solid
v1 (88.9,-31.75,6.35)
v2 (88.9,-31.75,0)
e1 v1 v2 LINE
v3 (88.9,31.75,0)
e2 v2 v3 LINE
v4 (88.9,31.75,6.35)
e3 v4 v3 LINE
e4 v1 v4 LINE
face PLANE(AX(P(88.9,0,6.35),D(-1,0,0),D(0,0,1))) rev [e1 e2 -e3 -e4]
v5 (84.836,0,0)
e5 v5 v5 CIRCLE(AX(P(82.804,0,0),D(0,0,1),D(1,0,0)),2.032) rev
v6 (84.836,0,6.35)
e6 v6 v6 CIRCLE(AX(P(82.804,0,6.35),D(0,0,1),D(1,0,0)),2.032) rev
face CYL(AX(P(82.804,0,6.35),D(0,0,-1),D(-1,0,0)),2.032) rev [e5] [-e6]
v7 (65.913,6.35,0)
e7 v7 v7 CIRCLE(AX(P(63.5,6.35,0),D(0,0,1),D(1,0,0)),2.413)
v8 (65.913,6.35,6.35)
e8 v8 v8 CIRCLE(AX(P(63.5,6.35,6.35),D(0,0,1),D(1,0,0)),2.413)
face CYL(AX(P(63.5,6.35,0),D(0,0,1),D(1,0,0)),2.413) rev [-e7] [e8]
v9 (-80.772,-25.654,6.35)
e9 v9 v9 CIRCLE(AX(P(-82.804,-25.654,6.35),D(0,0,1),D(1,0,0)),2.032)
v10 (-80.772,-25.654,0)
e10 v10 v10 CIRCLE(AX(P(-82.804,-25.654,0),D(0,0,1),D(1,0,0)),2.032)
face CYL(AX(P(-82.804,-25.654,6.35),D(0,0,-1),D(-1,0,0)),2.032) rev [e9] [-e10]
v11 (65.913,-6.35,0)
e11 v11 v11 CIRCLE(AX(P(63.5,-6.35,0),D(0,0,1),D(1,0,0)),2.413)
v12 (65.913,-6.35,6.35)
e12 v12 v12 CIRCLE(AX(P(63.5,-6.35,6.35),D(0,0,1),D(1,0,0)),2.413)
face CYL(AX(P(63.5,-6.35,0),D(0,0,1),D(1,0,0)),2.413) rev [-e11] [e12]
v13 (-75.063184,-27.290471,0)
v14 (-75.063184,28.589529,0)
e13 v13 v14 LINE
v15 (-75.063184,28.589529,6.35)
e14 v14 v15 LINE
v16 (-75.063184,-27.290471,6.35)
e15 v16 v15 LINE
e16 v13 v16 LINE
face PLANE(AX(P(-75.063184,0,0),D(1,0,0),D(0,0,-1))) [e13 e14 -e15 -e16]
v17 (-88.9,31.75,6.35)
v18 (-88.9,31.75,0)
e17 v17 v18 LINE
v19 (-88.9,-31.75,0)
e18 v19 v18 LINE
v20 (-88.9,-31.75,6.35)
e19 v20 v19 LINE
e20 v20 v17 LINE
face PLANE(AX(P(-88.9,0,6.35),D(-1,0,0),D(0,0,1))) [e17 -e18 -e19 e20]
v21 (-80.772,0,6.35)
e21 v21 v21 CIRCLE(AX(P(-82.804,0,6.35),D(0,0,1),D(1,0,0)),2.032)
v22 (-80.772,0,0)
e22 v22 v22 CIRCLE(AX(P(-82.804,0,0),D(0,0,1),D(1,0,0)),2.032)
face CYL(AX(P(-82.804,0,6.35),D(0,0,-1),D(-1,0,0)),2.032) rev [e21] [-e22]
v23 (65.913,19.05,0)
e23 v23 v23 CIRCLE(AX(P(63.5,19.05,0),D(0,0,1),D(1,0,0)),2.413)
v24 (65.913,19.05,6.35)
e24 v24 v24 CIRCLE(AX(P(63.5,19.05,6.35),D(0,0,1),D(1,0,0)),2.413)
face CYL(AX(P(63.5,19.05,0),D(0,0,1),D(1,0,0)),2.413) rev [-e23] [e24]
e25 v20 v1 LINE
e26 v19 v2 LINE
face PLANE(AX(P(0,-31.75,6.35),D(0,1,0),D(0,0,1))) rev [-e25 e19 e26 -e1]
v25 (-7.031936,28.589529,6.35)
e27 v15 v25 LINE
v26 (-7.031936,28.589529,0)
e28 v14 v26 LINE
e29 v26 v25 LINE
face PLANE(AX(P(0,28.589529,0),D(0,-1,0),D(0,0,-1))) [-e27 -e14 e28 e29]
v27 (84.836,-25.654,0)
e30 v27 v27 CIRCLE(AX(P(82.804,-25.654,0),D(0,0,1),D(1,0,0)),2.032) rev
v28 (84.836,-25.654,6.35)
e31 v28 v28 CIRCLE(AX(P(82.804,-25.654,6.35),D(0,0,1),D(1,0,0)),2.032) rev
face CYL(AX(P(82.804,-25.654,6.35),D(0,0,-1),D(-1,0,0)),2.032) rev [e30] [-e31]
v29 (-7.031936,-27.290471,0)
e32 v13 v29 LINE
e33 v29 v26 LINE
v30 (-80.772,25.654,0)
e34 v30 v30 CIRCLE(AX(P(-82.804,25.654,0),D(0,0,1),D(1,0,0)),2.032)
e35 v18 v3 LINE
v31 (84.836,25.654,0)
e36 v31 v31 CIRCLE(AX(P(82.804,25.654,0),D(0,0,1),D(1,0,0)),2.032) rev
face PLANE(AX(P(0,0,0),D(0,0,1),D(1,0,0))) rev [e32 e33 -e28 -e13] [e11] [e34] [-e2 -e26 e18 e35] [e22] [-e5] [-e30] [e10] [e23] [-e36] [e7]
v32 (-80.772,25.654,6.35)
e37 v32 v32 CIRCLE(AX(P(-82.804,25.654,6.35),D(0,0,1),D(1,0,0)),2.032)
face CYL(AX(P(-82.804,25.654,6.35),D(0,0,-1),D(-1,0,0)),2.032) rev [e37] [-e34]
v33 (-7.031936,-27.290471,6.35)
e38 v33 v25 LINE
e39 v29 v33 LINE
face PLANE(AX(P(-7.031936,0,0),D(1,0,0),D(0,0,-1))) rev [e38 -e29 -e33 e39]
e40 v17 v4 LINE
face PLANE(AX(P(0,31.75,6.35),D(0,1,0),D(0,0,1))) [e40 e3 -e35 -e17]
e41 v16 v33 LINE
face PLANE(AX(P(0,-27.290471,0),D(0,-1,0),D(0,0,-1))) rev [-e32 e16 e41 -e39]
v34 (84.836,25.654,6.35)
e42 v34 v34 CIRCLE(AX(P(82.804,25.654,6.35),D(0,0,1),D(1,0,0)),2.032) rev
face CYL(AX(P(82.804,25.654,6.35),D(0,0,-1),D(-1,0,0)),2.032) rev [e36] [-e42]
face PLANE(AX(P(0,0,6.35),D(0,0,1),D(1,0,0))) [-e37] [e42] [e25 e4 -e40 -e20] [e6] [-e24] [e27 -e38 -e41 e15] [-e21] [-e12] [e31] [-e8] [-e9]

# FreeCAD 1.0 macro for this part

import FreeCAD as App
import Part
import Sketcher
from FreeCAD import Vector
Q = App.Units.Quantity

doc = App.newDocument("Part")
params = doc.addObject("Spreadsheet::Sheet", "Params")
for row, (alias, value) in enumerate([
    ("sketch1_diameter", "0.16 in"),
    ("sketch1_width", "7 in"),
    ("sketch1_height", "2.5 in"),
    ("pad1_length", "0.25 in"),
    ("sketch2_height", "2.2 in"),
    ("pocket1_length", "0.25 in"),
    ("sketch3_diameter", "0.19 in"),
    ("pocket2_length", "0.25 in"),
    ("linearpattern_pitch", "0.5 in"),
], start=1):
    params.set(f"A{row}", alias)
    params.set(f"B{row}", "=" + value)
    params.setAlias(f"B{row}", alias)

body = doc.addObject("PartDesign::Body", "Body")

# Sketch on XY plane
sketch1 = body.newObject("Sketcher::SketchObject", "Sketch")
sketch1.AttachmentSupport = (doc.getObject("XY_Plane"), [""])
sketch1.MapMode = "FlatFace"
sketch1.addGeometry(Part.LineSegment(Vector(-88.9, 31.8, 0), Vector(-88.9, -31.8, 0)), False)
sketch1.addGeometry(Part.LineSegment(Vector(-88.9, -31.8, 0), Vector(88.9, -31.8, 0)), False)
sketch1.addGeometry(Part.LineSegment(Vector(88.9, -31.8, 0), Vector(88.9, 31.8, 0)), False)
sketch1.addGeometry(Part.LineSegment(Vector(88.9, 31.8, 0), Vector(-88.9, 31.8, 0)), False)
sketch1.addGeometry(Part.Circle(Vector(-82.8, -25.7, 0), Vector(0, 0, 1), 2), False)
sketch1.addGeometry(Part.Circle(Vector(82.8, -25.7, 0), Vector(0, 0, 1), 2), False)
sketch1.addGeometry(Part.Circle(Vector(-82.8, 0, 0), Vector(0, 0, 1), 2), False)
sketch1.addGeometry(Part.Circle(Vector(-82.8, 25.7, 0), Vector(0, 0, 1), 2), False)
sketch1.addGeometry(Part.Circle(Vector(82.8, 0, 0), Vector(0, 0, 1), 2), False)
sketch1.addGeometry(Part.Circle(Vector(82.8, 25.7, 0), Vector(0, 0, 1), 2), False)
sketch1.addConstraint(Sketcher.Constraint("Coincident", 0, 2, 1, 1))
sketch1.addConstraint(Sketcher.Constraint("Coincident", 1, 2, 2, 1))
sketch1.addConstraint(Sketcher.Constraint("Coincident", 2, 2, 3, 1))
sketch1.addConstraint(Sketcher.Constraint("Coincident", 3, 2, 0, 1))
sketch1.addConstraint(Sketcher.Constraint("Vertical", 0))
sketch1.addConstraint(Sketcher.Constraint("Horizontal", 1))
sketch1.addConstraint(Sketcher.Constraint("Vertical", 2))
sketch1.addConstraint(Sketcher.Constraint("Horizontal", 3))
sketch1.addConstraint(Sketcher.Constraint("Equal", 4, 5))
sketch1.addConstraint(Sketcher.Constraint("Equal", 5, 6))
sketch1.addConstraint(Sketcher.Constraint("Equal", 6, 7))
sketch1.addConstraint(Sketcher.Constraint("Equal", 7, 8))
sketch1.addConstraint(Sketcher.Constraint("Equal", 8, 9))
sketch1.addConstraint(Sketcher.Constraint("Symmetric", 5, 3, 7, 3, -1, 1))
sketch1.addConstraint(Sketcher.Constraint("Symmetric", 6, 3, 8, 3, -1, 1))
sketch1.addConstraint(Sketcher.Constraint("Symmetric", 4, 3, 9, 3, -1, 1))
sketch1.addConstraint(Sketcher.Constraint("Symmetric", 0, 2, 2, 2, -1, 1))
sketch1.addConstraint(Sketcher.Constraint("Symmetric", 4, 3, 5, 3, -2))
sketch1.addConstraint(Sketcher.Constraint("PointOnObject", 6, 3, -1))
sketch1.addConstraint(Sketcher.Constraint("Vertical", 4, 3, 6, 3))
sketch1.addConstraint(Sketcher.Constraint("Diameter", 4, Q("0.16 in")))
sketch1.addConstraint(Sketcher.Constraint("DistanceX", 1, 1, 1, 2, Q("7 in")))
sketch1.addConstraint(Sketcher.Constraint("DistanceY", 0, 2, 0, 1, Q("2.5 in")))
sketch1.addConstraint(Sketcher.Constraint("DistanceX", 4, 3, -1, 1, Q("3.26 in")))
sketch1.addConstraint(Sketcher.Constraint("DistanceY", 4, 3, -1, 1, Q("1.01 in")))
sketch1.setExpression("Constraints[20]", "Params.sketch1_diameter")
sketch1.setExpression("Constraints[21]", "Params.sketch1_width")
sketch1.setExpression("Constraints[22]", "Params.sketch1_height")
pad1 = body.newObject("PartDesign::Pad", "Pad")
pad1.Profile = sketch1
pad1.setExpression("Length", "Params.pad1_length")

# Sketch on XY plane
sketch2 = body.newObject("Sketcher::SketchObject", "Sketch001")
sketch2.AttachmentSupport = (doc.getObject("XY_Plane"), [""])
sketch2.MapMode = "FlatFace"
sketch2.AttachmentOffset = App.Placement(Vector(0, 0, 0.25 * 25.4), App.Rotation())
sketch2.addGeometry(Part.LineSegment(Vector(-75, 29, 0), Vector(-75, -27, 0)), False)
sketch2.addGeometry(Part.LineSegment(Vector(-75, -27, 0), Vector(-7, -27, 0)), False)
sketch2.addGeometry(Part.LineSegment(Vector(-7, -27, 0), Vector(-7, 29, 0)), False)
sketch2.addGeometry(Part.LineSegment(Vector(-7, 29, 0), Vector(-75, 29, 0)), False)
sketch2.addConstraint(Sketcher.Constraint("Coincident", 0, 2, 1, 1))
sketch2.addConstraint(Sketcher.Constraint("Coincident", 1, 2, 2, 1))
sketch2.addConstraint(Sketcher.Constraint("Coincident", 2, 2, 3, 1))
sketch2.addConstraint(Sketcher.Constraint("Coincident", 3, 2, 0, 1))
sketch2.addConstraint(Sketcher.Constraint("Vertical", 0))
sketch2.addConstraint(Sketcher.Constraint("Horizontal", 1))
sketch2.addConstraint(Sketcher.Constraint("Vertical", 2))
sketch2.addConstraint(Sketcher.Constraint("Horizontal", 3))
sketch2.addConstraint(Sketcher.Constraint("DistanceY", 0, 2, 0, 1, Q("2.2 in")))
sketch2.addConstraint(Sketcher.Constraint("DistanceX", 1, 1, 1, 2, Q("68.031248 mm")))
sketch2.addConstraint(Sketcher.Constraint("DistanceY", 0, 2, -1, 1, Q("27.290471 mm")))
sketch2.addConstraint(Sketcher.Constraint("DistanceX", 0, 2, -1, 1, Q("75.063184 mm")))
sketch2.setExpression("Constraints[8]", "Params.sketch2_height")
pocket1 = body.newObject("PartDesign::Pocket", "Pocket")
pocket1.Profile = sketch2
pocket1.setExpression("Length", "Params.pocket1_length")

# Sketch on XY plane
sketch3 = body.newObject("Sketcher::SketchObject", "Sketch002")
sketch3.AttachmentSupport = (doc.getObject("XY_Plane"), [""])
sketch3.MapMode = "FlatFace"
sketch3.AttachmentOffset = App.Placement(Vector(0, 0, 0.25 * 25.4), App.Rotation())
sketch3.addGeometry(Part.Circle(Vector(63.5, 19.1, 0), Vector(0, 0, 1), 2.4), False)
sketch3.addConstraint(Sketcher.Constraint("Diameter", 0, Q("0.19 in")))
sketch3.addConstraint(Sketcher.Constraint("DistanceX", -1, 1, 0, 3, Q("2.5 in")))
sketch3.addConstraint(Sketcher.Constraint("DistanceY", -1, 1, 0, 3, Q("0.75 in")))
sketch3.setExpression("Constraints[0]", "Params.sketch3_diameter")
pocket2 = body.newObject("PartDesign::Pocket", "Pocket001")
pocket2.Profile = sketch3
pocket2.setExpression("Length", "Params.pocket2_length")
doc.recompute()

linearpattern = body.newObject("PartDesign::LinearPattern", "LinearPattern")
linearpattern.Originals = [pocket2]
linearpattern.Direction = (doc.getObject("Y_Axis"), [""])
linearpattern.Mode = "offset"
linearpattern.setExpression("Offset", "Params.linearpattern_pitch")
linearpattern.Occurrences = 3
linearpattern.Reversed = True
body.Tip = linearpattern

doc.recompute()
